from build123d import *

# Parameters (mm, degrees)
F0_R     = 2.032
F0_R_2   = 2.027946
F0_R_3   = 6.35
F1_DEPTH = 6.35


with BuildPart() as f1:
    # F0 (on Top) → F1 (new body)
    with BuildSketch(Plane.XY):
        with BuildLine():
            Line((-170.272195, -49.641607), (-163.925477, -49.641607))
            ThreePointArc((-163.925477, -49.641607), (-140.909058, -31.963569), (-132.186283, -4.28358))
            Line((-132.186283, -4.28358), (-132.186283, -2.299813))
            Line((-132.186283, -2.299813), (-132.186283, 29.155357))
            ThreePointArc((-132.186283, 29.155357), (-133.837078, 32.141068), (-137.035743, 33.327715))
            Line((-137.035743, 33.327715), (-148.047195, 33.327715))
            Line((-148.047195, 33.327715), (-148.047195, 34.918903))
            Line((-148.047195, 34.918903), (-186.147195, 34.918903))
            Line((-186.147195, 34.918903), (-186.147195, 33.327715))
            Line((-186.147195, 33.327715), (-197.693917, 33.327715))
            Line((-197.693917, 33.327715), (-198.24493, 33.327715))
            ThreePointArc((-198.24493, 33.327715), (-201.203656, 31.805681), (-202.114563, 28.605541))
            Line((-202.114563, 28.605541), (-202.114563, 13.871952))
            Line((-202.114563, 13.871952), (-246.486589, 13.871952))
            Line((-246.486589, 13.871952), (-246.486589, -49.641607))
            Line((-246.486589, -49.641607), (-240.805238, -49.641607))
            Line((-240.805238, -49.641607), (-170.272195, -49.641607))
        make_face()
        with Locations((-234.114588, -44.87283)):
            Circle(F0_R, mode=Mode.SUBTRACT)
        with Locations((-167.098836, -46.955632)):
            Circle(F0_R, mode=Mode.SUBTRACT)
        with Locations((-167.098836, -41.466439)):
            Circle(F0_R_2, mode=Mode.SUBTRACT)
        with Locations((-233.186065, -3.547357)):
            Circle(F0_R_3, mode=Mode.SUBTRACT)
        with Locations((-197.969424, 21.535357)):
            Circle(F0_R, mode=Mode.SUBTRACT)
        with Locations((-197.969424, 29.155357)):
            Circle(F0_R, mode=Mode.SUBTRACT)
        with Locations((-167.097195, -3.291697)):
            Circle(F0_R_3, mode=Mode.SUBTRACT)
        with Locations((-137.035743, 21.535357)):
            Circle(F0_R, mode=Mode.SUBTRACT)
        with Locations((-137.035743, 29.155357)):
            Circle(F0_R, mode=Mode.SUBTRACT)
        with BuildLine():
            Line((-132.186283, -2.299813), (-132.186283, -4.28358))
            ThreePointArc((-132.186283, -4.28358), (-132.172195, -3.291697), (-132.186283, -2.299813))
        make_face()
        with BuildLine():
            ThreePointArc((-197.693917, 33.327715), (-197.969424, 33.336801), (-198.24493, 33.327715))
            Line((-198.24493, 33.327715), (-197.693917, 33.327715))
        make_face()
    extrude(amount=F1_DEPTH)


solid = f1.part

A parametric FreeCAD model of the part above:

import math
import FreeCAD as App
import Part
import Sketcher
Q = App.Units.Quantity

doc = App.newDocument("Part")
body = doc.addObject("PartDesign::Body", "Body")

# Sketch on XY plane
sketch1 = body.newObject("Sketcher::SketchObject", "Sketch")
sketch1.AttachmentSupport = (doc.getObject("XY_Plane"), [""])
sketch1.MapMode = "FlatFace"
sketch1.addGeometry(Part.ArcOfCircle(Part.Circle(App.Vector(-180.46613, -4.283582, 0), App.Vector(0, 0, 1), 48.279847), math.radians(-69.964669), math.radians(0.000002)), False)
sketch1.addGeometry(Part.ArcOfCircle(Part.Circle(App.Vector(-167.096647, -3.291697, 0), App.Vector(0, 0, 1), 34.924452), math.radians(-1.627467), math.radians(1.627467)), False)
sketch1.addGeometry(Part.LineSegment(App.Vector(-132.186283, -2.299813, 0), App.Vector(-132.186283, 29.155357, 0)), False)
sketch1.addGeometry(Part.ArcOfCircle(Part.Circle(App.Vector(-137.035742, 28.423315, 0), App.Vector(0, 0, 1), 4.9044), math.radians(8.584177), math.radians(90.000011)), False)
sketch1.addGeometry(Part.LineSegment(App.Vector(-137.035743, 33.327715, 0), App.Vector(-148.047195, 33.327715, 0)), False)
sketch1.addGeometry(Part.LineSegment(App.Vector(-148.047195, 33.327715, 0), App.Vector(-148.047195, 34.918903, 0)), False)
sketch1.addGeometry(Part.LineSegment(App.Vector(-148.047195, 34.918903, 0), App.Vector(-186.147195, 34.918903, 0)), False)
sketch1.addGeometry(Part.LineSegment(App.Vector(-186.147195, 34.918903, 0), App.Vector(-186.147195, 33.327715, 0)), False)
sketch1.addGeometry(Part.LineSegment(App.Vector(-186.147195, 33.327715, 0), App.Vector(-197.693917, 33.327715, 0)), False)
sketch1.addGeometry(Part.ArcOfCircle(Part.Circle(App.Vector(-197.969424, 29.155292, 0), App.Vector(0, 0, 1), 4.181509), math.radians(86.222225), math.radians(93.777775)), False)
sketch1.addGeometry(Part.ArcOfCircle(Part.Circle(App.Vector(-197.969424, 29.155357, 0), App.Vector(0, 0, 1), 4.181444), math.radians(93.777831), math.radians(187.55567)), False)
sketch1.addGeometry(Part.LineSegment(App.Vector(-202.114563, 28.605541, 0), App.Vector(-202.114563, 13.871952, 0)), False)
sketch1.addGeometry(Part.LineSegment(App.Vector(-202.114563, 13.871952, 0), App.Vector(-246.486589, 13.871952, 0)), False)
sketch1.addGeometry(Part.LineSegment(App.Vector(-246.486589, 13.871952, 0), App.Vector(-246.486589, -49.641607, 0)), False)
sketch1.addGeometry(Part.LineSegment(App.Vector(-246.486589, -49.641607, 0), App.Vector(-163.925477, -49.641607, 0)), False)
sketch1.addGeometry(Part.Circle(App.Vector(-234.114588, -44.87283, 0), App.Vector(0, 0, 1), 2.032), False)
sketch1.addGeometry(Part.Circle(App.Vector(-167.098836, -46.955632, 0), App.Vector(0, 0, 1), 2.032), False)
sketch1.addGeometry(Part.Circle(App.Vector(-167.098836, -41.466439, 0), App.Vector(0, 0, 1), 2.027946), False)
sketch1.addGeometry(Part.Circle(App.Vector(-233.186065, -3.547357, 0), App.Vector(0, 0, 1), 6.35), False)
sketch1.addGeometry(Part.Circle(App.Vector(-197.969424, 21.535357, 0), App.Vector(0, 0, 1), 2.032), False)
sketch1.addGeometry(Part.Circle(App.Vector(-197.969424, 29.155357, 0), App.Vector(0, 0, 1), 2.032), False)
sketch1.addGeometry(Part.Circle(App.Vector(-167.097195, -3.291697, 0), App.Vector(0, 0, 1), 6.35), False)
sketch1.addGeometry(Part.Circle(App.Vector(-137.035743, 21.535357, 0), App.Vector(0, 0, 1), 2.032), False)
sketch1.addGeometry(Part.Circle(App.Vector(-137.035743, 29.155357, 0), App.Vector(0, 0, 1), 2.032), False)
sketch1.addConstraint(Sketcher.Constraint("Coincident", 0, 2, 1, 1))
sketch1.addConstraint(Sketcher.Constraint("Coincident", 1, 2, 2, 1))
sketch1.addConstraint(Sketcher.Constraint("Coincident", 2, 2, 3, 1))
sketch1.addConstraint(Sketcher.Constraint("Coincident", 3, 2, 4, 1))
sketch1.addConstraint(Sketcher.Constraint("Coincident", 4, 2, 5, 1))
sketch1.addConstraint(Sketcher.Constraint("Coincident", 5, 2, 6, 1))
sketch1.addConstraint(Sketcher.Constraint("Coincident", 6, 2, 7, 1))
sketch1.addConstraint(Sketcher.Constraint("Coincident", 7, 2, 8, 1))
sketch1.addConstraint(Sketcher.Constraint("Coincident", 8, 2, 9, 1))
sketch1.addConstraint(Sketcher.Constraint("Coincident", 9, 2, 10, 1))
sketch1.addConstraint(Sketcher.Constraint("Coincident", 10, 2, 11, 1))
sketch1.addConstraint(Sketcher.Constraint("Coincident", 11, 2, 12, 1))
sketch1.addConstraint(Sketcher.Constraint("Coincident", 12, 2, 13, 1))
sketch1.addConstraint(Sketcher.Constraint("Coincident", 13, 2, 14, 1))
sketch1.addConstraint(Sketcher.Constraint("Coincident", 14, 2, 0, 1))
sketch1.addConstraint(Sketcher.Constraint("Vertical", 2))
sketch1.addConstraint(Sketcher.Constraint("Horizontal", 4))
sketch1.addConstraint(Sketcher.Constraint("Vertical", 5))
sketch1.addConstraint(Sketcher.Constraint("Horizontal", 6))
sketch1.addConstraint(Sketcher.Constraint("Vertical", 7))
sketch1.addConstraint(Sketcher.Constraint("Horizontal", 8))
sketch1.addConstraint(Sketcher.Constraint("Vertical", 11))
sketch1.addConstraint(Sketcher.Constraint("Horizontal", 12))
sketch1.addConstraint(Sketcher.Constraint("Vertical", 13))
sketch1.addConstraint(Sketcher.Constraint("Horizontal", 14))
sketch1.addConstraint(Sketcher.Constraint("Coincident", 20, 3, 10, 3))
sketch1.addConstraint(Sketcher.Constraint("Diameter", 18, Q("0.5 in")))
sketch1.addConstraint(Sketcher.Constraint("Diameter", 21, Q("0.5 in")))
sketch1.addConstraint(Sketcher.Constraint("Diameter", 15, Q("0.16 in")))
sketch1.addConstraint(Sketcher.Constraint("Diameter", 16, Q("0.16 in")))
sketch1.addConstraint(Sketcher.Constraint("Diameter", 19, Q("0.16 in")))
sketch1.addConstraint(Sketcher.Constraint("Diameter", 20, Q("0.16 in")))
sketch1.addConstraint(Sketcher.Constraint("Diameter", 22, Q("0.16 in")))
sketch1.addConstraint(Sketcher.Constraint("Diameter", 23, Q("0.16 in")))
sketch1.addConstraint(Sketcher.Constraint("DistanceX", 6, 2, 6, 1, Q("1.5 in")))
sketch1.addConstraint(Sketcher.Constraint("DistanceY", 19, 3, 10, 3, Q("0.3 in")))
sketch1.addConstraint(Sketcher.Constraint("DistanceY", 22, 3, 23, 3, Q("0.3 in")))
sketch1.addConstraint(Sketcher.Constraint("DistanceY", 22, 3, 2, 2, Q("0.3 in")))
sketch1.addConstraint(Sketcher.Constraint("Radius", 3, Q("4.9044 mm")))
sketch1.addConstraint(Sketcher.Constraint("Radius", 1, Q("34.924452 mm")))
sketch1.addConstraint(Sketcher.Constraint("Radius", 9, Q("4.181509 mm")))
sketch1.addConstraint(Sketcher.Constraint("DistanceY", 16, 3, 15, 3, Q("0.0820001 in")))
sketch1.addConstraint(Sketcher.Constraint("Diameter", 17, Q("4.055892 mm")))
sketch1.addConstraint(Sketcher.Constraint("Radius", 0, Q("48.279847 mm")))
sketch1.addConstraint(Sketcher.Constraint("Radius", 10, Q("4.181444 mm")))
sketch1.addConstraint(Sketcher.Constraint("DistanceX", 1, 3, 3, 3, Q("1.1835002 in")))
sketch1.addConstraint(Sketcher.Constraint("DistanceX", 1, 3, 22, 3, Q("1.1835001 in")))
sketch1.addConstraint(Sketcher.Constraint("DistanceX", 1, 3, 23, 3, Q("1.1835001 in")))
sketch1.addConstraint(Sketcher.Constraint("DistanceX", 4, 2, 4, 1, Q("11.011452 mm")))
sketch1.addConstraint(Sketcher.Constraint("DistanceX", 8, 2, 8, 1, Q("11.546722 mm")))
sketch1.addConstraint(Sketcher.Constraint("DistanceY", 2, 1, 2, 2, Q("31.45517 mm")))
sketch1.addConstraint(Sketcher.Constraint("DistanceY", 5, 1, 5, 2, Q("1.591188 mm")))
sketch1.addConstraint(Sketcher.Constraint("DistanceY", 7, 2, 7, 1, Q("1.591188 mm")))
sketch1.addConstraint(Sketcher.Constraint("DistanceY", 11, 2, 11, 1, Q("14.733589 mm")))
sketch1.addConstraint(Sketcher.Constraint("DistanceY", 13, 2, 13, 1, Q("63.513559 mm")))
sketch1.addConstraint(Sketcher.Constraint("DistanceX", 13, 2, 15, 3, Q("12.372001 mm")))
sketch1.addConstraint(Sketcher.Constraint("DistanceX", 12, 2, 12, 1, Q("44.372026 mm")))
sketch1.addConstraint(Sketcher.Constraint("DistanceX", 14, 1, 14, 2, Q("82.561112 mm")))
sketch1.addConstraint(Sketcher.Constraint("DistanceX", 0, 3, -1, 1, Q("180.46613 mm")))
sketch1.addConstraint(Sketcher.Constraint("DistanceY", 0, 3, -1, 1, Q("4.283582 mm")))
sketch1.addConstraint(Sketcher.Constraint("DistanceY", -1, 1, 9, 3, Q("29.155292 mm")))
sketch1.addConstraint(Sketcher.Constraint("DistanceX", 15, 3, -1, 1, Q("234.114588 mm")))
sketch1.addConstraint(Sketcher.Constraint("DistanceY", 15, 3, -1, 1, Q("44.87283 mm")))
sketch1.addConstraint(Sketcher.Constraint("DistanceY", 17, 3, -1, 1, Q("41.466439 mm")))
sketch1.addConstraint(Sketcher.Constraint("DistanceY", 0, 2, -1, 1, Q("4.28358 mm")))
sketch1.addConstraint(Sketcher.Constraint("DistanceX", 9, 2, -1, 1, Q("198.24493 mm")))
sketch1.addConstraint(Sketcher.Constraint("DistanceY", 1, 3, 3, 3, Q("31.715012 mm")))
sketch1.addConstraint(Sketcher.Constraint("DistanceY", 1, 3, 9, 3, Q("32.446988 mm")))
sketch1.addConstraint(Sketcher.Constraint("DistanceX", 9, 3, 3, 3, Q("60.933681 mm")))
sketch1.addConstraint(Sketcher.Constraint("DistanceX", 16, 3, 1, 3, Q("0.002189 mm")))
sketch1.addConstraint(Sketcher.Constraint("DistanceX", 17, 3, 1, 3, Q("0.002189 mm")))
sketch1.addConstraint(Sketcher.Constraint("DistanceX", 18, 3, 9, 3, Q("35.216642 mm")))
sketch1.addConstraint(Sketcher.Constraint("DistanceY", 18, 3, 9, 3, Q("32.702649 mm")))
sketch1.addConstraint(Sketcher.Constraint("DistanceX", 18, 3, 19, 3, Q("35.216641 mm")))
sketch1.addConstraint(Sketcher.Constraint("DistanceX", 21, 3, 1, 3, Q("0.000548 mm")))
sketch1.addConstraint(Sketcher.Constraint("DistanceY", 14, 2, 21, 3, Q("46.34991 mm")))
pad1 = body.newObject("PartDesign::Pad", "Pad")
pad1.Profile = sketch1
pad1.Length = Q("0.25 in")

doc.recompute()
